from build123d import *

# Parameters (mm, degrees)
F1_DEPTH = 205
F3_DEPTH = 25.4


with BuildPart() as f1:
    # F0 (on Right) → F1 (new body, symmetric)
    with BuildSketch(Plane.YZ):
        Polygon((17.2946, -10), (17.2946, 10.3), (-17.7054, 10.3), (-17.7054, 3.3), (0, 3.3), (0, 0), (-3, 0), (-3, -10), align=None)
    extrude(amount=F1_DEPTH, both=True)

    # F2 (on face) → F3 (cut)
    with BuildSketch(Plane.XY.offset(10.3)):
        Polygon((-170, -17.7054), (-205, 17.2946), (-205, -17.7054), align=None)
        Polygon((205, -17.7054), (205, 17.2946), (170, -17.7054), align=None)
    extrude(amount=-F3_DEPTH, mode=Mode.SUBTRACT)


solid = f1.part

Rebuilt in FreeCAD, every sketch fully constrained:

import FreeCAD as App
import Part
import Sketcher
from FreeCAD import Vector

doc = App.newDocument("Part")
body = doc.addObject("PartDesign::Body", "Body")

sketch1 = body.newObject("Sketcher::SketchObject", "Sketch")
sketch1.AttachmentSupport = (doc.getObject("YZ_Plane"), [""])
sketch1.MapMode = "FlatFace"
sketch1.addGeometry([
    Part.LineSegment(Vector(17.3, -10, 0), Vector(17.3, 10.3, 0)),
    Part.LineSegment(Vector(17.3, 10.3, 0), Vector(-17.7, 10.3, 0)),
    Part.LineSegment(Vector(-17.7, 10.3, 0), Vector(-17.7, 3.3, 0)),
    Part.LineSegment(Vector(-17.7, 3.3, 0), Vector(0, 3.3, 0)),
    Part.LineSegment(Vector(0, 3.3, 0), Vector(0, 0, 0)),
    Part.LineSegment(Vector(0, 0, 0), Vector(-3, 0, 0)),
    Part.LineSegment(Vector(-3, 0, 0), Vector(-3, -10, 0)),
    Part.LineSegment(Vector(-3, -10, 0), Vector(17.3, -10, 0)),
], False)
sketch1.addConstraint([
    Sketcher.Constraint("Coincident", 0, 2, 1, 1),
    Sketcher.Constraint("Coincident", 1, 2, 2, 1),
    Sketcher.Constraint("Coincident", 2, 2, 3, 1),
    Sketcher.Constraint("Coincident", 3, 2, 4, 1),
    Sketcher.Constraint("Coincident", 4, 2, 5, 1),
    Sketcher.Constraint("Coincident", 5, 2, 6, 1),
    Sketcher.Constraint("Coincident", 6, 2, 7, 1),
    Sketcher.Constraint("Coincident", 7, 2, 0, 1),
    Sketcher.Constraint("Vertical", 0),
    Sketcher.Constraint("Horizontal", 1),
    Sketcher.Constraint("Vertical", 2),
    Sketcher.Constraint("Horizontal", 3),
    Sketcher.Constraint("Vertical", 4),
    Sketcher.Constraint("Horizontal", 5),
    Sketcher.Constraint("Vertical", 6),
    Sketcher.Constraint("Horizontal", 7),
    Sketcher.Constraint("Coincident", 4, 2, -1, 1),
    Sketcher.Constraint("DistanceX", 1, 2, 1, 1, 35.0),
    Sketcher.Constraint("DistanceX", 5, 2, 5, 1, 3.0),
    Sketcher.Constraint("DistanceY", 2, 2, 2, 1, 7.0),
    Sketcher.Constraint("DistanceY", 6, 2, 6, 1, 10.0),
    Sketcher.Constraint("DistanceY", 0, 1, 0, 2, 20.3),
    Sketcher.Constraint("DistanceX", 3, 1, 3, 2, 17.7054),
])
pad1 = body.newObject("PartDesign::Pad", "Pad")
pad1.Profile = sketch1
pad1.Length = 410
pad1.Midplane = True

sketch2 = body.newObject("Sketcher::SketchObject", "Sketch001")
sketch2.AttachmentSupport = (doc.getObject("XY_Plane"), [""])
sketch2.MapMode = "FlatFace"
sketch2.AttachmentOffset = App.Placement(Vector(0, 0, 10.3), App.Rotation())
sketch2.addGeometry([
    Part.LineSegment(Vector(-170, -18, 0), Vector(-205, 17, 0)),
    Part.LineSegment(Vector(-205, 17, 0), Vector(-205, -18, 0)),
    Part.LineSegment(Vector(-205, -18, 0), Vector(-170, -18, 0)),
    Part.LineSegment(Vector(205, -18, 0), Vector(205, 17, 0)),
    Part.LineSegment(Vector(205, 17, 0), Vector(170, -18, 0)),
    Part.LineSegment(Vector(170, -18, 0), Vector(205, -18, 0)),
], False)
sketch2.addConstraint([
    Sketcher.Constraint("Coincident", 0, 2, 1, 1),
    Sketcher.Constraint("Coincident", 1, 2, 2, 1),
    Sketcher.Constraint("Coincident", 2, 2, 0, 1),
    Sketcher.Constraint("Coincident", 3, 2, 4, 1),
    Sketcher.Constraint("Coincident", 4, 2, 5, 1),
    Sketcher.Constraint("Coincident", 5, 2, 3, 1),
    Sketcher.Constraint("Vertical", 1),
    Sketcher.Constraint("Horizontal", 2),
    Sketcher.Constraint("Vertical", 3),
    Sketcher.Constraint("Horizontal", 5),
    Sketcher.Constraint("Symmetric", 0, 2, 3, 2, -2),
    Sketcher.Constraint("Symmetric", 2, 2, 4, 2, -2),
    Sketcher.Constraint("Perpendicular", 0, 4),
    Sketcher.Constraint("DistanceX", 2, 1, 2, 2, 35.0),
    Sketcher.Constraint("DistanceX", 0, 2, -1, 1, 205.0),
    Sketcher.Constraint("DistanceY", -1, 1, 0, 2, 17.2946),
])
pocket1 = body.newObject("PartDesign::Pocket", "Pocket")
pocket1.Profile = sketch2
pocket1.Length = 25.4

doc.recompute()
